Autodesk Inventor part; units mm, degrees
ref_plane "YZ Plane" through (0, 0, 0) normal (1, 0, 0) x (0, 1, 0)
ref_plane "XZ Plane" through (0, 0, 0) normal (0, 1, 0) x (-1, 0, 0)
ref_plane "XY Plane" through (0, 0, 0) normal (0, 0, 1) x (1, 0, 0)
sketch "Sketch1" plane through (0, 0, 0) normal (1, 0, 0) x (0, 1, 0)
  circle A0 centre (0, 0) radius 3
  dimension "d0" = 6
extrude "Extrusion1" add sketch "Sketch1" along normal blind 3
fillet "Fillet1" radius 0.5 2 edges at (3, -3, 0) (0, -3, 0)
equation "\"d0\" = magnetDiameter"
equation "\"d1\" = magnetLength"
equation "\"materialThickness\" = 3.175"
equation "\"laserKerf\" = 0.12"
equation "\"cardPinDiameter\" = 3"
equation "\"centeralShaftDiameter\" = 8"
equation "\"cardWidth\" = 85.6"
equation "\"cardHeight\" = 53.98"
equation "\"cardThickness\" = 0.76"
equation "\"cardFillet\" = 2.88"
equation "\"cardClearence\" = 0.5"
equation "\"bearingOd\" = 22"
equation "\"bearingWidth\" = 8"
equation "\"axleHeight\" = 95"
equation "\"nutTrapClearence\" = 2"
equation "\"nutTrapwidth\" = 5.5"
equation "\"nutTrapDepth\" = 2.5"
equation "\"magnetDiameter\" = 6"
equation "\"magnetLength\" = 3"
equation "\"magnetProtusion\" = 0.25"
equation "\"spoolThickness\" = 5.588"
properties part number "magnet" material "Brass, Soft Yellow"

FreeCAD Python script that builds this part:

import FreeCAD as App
import Part
import Sketcher

V = App.Vector


def edges_at(feature, points):
    """Names of the edges that pass closest to the given points."""
    edges = feature.Shape.Edges
    near = lambda p: min(range(len(edges)), key=lambda i: edges[i].distToShape(Part.Vertex(*p))[0])
    return sorted({f"Edge{near(p) + 1}" for p in points})

doc = App.newDocument("Part")
params = doc.addObject("Spreadsheet::Sheet", "Params")
for row, (alias, value) in enumerate([
    ("sketch1_diameter", "6 mm"),
    ("pad1_length", "3 mm"),
    ("fillet_radius", "0.5 mm"),
], start=1):
    params.set(f"A{row}", alias)
    params.set(f"B{row}", "=" + value)
    params.setAlias(f"B{row}", alias)

body = doc.addObject("PartDesign::Body", "Body")

sketch1 = doc.addObject("Sketcher::SketchObject", "Sketch")
body.addObject(sketch1)
sketch1.AttachmentSupport = (doc.YZ_Plane, [""])
sketch1.MapMode = "FlatFace"
sketch1.addGeometry(Part.Circle(V(0, 0, 0), V(0, 0, 1), 3), False)
sketch1.addConstraint(Sketcher.Constraint("Coincident", 0, 3, -1, 1))
sketch1.addConstraint(Sketcher.Constraint("Diameter", 0, 6.0))
sketch1.setExpression("Constraints[1]", "Params.sketch1_diameter")
pad1 = doc.addObject("PartDesign::Pad", "Pad")
body.addObject(pad1)
pad1.Profile = sketch1
pad1.setExpression("Length", "Params.pad1_length")
doc.recompute()

fillet = doc.addObject("PartDesign::Fillet", "Fillet")
body.addObject(fillet)
fillet.Base = (pad1, edges_at(pad1, [(3, -3, 0), (0, -3, 0)]))
fillet.setExpression("Radius", "Params.fillet_radius")

doc.recompute()
